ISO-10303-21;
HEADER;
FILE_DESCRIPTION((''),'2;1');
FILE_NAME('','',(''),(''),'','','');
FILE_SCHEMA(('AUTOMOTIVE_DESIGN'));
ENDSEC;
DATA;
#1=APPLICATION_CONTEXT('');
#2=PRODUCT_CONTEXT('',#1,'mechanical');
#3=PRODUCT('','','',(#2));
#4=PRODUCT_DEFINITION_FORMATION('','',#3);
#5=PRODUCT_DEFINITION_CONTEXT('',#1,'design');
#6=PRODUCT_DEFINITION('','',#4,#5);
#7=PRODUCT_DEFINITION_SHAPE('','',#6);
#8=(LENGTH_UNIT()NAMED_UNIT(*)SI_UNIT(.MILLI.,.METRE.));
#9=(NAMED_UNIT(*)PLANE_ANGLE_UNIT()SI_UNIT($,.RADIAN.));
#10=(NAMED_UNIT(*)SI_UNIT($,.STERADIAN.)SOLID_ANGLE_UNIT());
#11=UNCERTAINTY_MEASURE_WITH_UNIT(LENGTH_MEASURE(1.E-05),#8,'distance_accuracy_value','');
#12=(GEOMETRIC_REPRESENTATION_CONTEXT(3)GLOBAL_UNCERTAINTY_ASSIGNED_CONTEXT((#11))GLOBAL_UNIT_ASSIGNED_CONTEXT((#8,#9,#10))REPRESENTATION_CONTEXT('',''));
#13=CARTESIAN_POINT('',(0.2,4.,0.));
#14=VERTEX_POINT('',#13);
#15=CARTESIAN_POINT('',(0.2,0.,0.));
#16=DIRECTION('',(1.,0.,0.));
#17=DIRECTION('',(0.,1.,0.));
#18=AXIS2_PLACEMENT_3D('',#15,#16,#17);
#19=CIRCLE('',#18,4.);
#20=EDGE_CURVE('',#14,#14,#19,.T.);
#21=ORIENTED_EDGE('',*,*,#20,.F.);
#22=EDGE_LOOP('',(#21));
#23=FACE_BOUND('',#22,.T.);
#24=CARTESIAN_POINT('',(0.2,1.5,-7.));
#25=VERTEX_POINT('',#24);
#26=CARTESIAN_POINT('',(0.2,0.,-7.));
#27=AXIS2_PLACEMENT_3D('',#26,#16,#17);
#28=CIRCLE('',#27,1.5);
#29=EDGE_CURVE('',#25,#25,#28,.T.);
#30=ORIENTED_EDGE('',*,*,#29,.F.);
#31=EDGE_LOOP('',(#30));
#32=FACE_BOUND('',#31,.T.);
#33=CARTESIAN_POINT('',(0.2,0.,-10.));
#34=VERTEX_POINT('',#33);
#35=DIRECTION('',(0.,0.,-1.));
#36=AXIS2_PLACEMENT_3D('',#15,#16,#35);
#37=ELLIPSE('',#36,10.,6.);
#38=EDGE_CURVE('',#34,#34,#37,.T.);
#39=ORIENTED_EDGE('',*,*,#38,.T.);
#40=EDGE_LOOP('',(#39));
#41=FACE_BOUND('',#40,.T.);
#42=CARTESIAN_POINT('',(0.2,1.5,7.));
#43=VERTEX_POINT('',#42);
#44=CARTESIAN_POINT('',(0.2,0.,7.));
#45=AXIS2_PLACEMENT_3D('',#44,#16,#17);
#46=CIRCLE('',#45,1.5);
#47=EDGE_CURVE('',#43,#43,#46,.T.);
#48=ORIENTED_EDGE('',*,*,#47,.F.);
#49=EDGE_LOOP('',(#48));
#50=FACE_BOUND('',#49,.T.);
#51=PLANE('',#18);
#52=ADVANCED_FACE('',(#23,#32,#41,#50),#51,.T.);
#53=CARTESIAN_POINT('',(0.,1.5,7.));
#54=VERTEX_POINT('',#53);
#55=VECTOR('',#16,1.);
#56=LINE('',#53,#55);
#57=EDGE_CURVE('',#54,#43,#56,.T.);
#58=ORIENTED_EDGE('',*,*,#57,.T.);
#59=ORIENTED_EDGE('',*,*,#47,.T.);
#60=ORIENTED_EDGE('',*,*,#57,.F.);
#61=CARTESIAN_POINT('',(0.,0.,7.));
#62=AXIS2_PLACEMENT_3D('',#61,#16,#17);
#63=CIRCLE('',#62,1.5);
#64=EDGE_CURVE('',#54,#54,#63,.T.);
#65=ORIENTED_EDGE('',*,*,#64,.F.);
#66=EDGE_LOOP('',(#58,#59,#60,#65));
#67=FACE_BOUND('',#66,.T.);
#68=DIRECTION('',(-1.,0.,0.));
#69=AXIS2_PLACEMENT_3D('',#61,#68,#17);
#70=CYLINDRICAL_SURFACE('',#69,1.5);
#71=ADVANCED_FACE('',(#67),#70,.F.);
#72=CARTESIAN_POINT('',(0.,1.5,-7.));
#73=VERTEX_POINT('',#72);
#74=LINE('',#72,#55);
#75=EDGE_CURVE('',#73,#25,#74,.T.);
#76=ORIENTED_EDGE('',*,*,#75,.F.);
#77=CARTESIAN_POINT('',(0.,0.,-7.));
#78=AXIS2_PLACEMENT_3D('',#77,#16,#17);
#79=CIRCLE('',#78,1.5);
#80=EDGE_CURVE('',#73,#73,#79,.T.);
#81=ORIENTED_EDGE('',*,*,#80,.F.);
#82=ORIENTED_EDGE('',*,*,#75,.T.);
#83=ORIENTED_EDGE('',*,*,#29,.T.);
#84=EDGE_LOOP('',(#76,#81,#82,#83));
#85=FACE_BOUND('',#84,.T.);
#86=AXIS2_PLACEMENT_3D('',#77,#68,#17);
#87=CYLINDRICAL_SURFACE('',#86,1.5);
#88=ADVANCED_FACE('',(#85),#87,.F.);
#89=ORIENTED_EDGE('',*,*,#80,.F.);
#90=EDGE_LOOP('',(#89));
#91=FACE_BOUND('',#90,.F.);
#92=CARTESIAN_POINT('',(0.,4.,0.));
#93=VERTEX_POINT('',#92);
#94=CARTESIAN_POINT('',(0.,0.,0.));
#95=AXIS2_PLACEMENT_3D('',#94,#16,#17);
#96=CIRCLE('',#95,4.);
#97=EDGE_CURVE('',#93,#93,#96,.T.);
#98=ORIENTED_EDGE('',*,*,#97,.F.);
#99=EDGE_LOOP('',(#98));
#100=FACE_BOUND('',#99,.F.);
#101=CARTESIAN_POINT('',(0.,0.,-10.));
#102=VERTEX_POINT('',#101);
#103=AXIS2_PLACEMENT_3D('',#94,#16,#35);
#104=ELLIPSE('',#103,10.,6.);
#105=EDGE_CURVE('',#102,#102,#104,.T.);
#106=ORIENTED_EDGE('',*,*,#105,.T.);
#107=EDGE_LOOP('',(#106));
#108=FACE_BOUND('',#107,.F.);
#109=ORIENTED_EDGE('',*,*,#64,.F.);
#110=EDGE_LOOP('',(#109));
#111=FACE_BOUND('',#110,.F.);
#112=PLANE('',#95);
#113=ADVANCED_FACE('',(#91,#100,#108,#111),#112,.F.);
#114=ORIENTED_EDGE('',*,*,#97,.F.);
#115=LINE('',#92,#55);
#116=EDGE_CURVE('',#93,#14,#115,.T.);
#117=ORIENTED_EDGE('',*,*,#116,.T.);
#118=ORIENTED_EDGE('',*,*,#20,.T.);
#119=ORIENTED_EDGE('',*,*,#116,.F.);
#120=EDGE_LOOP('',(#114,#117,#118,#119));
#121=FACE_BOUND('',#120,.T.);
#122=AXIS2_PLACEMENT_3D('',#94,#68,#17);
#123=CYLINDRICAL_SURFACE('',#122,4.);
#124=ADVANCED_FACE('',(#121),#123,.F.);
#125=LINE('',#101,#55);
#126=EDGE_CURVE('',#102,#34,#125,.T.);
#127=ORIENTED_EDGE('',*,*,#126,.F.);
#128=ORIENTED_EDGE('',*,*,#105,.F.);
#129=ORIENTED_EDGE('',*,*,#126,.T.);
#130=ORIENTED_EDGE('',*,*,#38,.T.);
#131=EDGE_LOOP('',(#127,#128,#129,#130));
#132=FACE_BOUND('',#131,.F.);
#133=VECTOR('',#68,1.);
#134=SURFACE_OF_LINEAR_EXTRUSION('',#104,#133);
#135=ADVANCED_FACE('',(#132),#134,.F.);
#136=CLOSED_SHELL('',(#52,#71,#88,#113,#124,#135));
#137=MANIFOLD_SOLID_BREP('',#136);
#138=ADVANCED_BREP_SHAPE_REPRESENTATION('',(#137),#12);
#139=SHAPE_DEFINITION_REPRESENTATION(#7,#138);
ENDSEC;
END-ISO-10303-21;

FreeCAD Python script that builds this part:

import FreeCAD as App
import Part
import Sketcher
from FreeCAD import Vector

doc = App.newDocument("Part")
body = doc.addObject("PartDesign::Body", "Body")

# Sketch on YZ plane
sketch1 = body.newObject("Sketcher::SketchObject", "Sketch")
sketch1.AttachmentSupport = (doc.getObject("YZ_Plane"), [""])
sketch1.MapMode = "FlatFace"
sketch1.addGeometry([
    Part.Ellipse(Vector(0, -10, 0), Vector(6, 0, 0), Vector(0, 0, 0)),
    Part.Circle(Vector(0, -7, 0), Vector(0, 0, 1), 1.5),
    Part.Circle(Vector(0, 0, 0), Vector(0, 0, 1), 4),
    Part.Circle(Vector(0, 7, 0), Vector(0, 0, 1), 1.5),
], False)
sketch1.addConstraint([
    Sketcher.Constraint("Block", 0),
    Sketcher.Constraint("Coincident", 2, 3, -1, 1),
    Sketcher.Constraint("Equal", 1, 3),
    Sketcher.Constraint("Symmetric", 1, 3, 3, 3, -1, 1),
    Sketcher.Constraint("PointOnObject", 1, 3, -2),
    Sketcher.Constraint("Diameter", 1, 3.0),
    Sketcher.Constraint("Diameter", 2, 8.0),
    Sketcher.Constraint("DistanceY", 1, 3, -1, 1, 7.0),
])
pad1 = body.newObject("PartDesign::Pad", "Pad")
pad1.Profile = sketch1
pad1.Length = 0.2

doc.recompute()
